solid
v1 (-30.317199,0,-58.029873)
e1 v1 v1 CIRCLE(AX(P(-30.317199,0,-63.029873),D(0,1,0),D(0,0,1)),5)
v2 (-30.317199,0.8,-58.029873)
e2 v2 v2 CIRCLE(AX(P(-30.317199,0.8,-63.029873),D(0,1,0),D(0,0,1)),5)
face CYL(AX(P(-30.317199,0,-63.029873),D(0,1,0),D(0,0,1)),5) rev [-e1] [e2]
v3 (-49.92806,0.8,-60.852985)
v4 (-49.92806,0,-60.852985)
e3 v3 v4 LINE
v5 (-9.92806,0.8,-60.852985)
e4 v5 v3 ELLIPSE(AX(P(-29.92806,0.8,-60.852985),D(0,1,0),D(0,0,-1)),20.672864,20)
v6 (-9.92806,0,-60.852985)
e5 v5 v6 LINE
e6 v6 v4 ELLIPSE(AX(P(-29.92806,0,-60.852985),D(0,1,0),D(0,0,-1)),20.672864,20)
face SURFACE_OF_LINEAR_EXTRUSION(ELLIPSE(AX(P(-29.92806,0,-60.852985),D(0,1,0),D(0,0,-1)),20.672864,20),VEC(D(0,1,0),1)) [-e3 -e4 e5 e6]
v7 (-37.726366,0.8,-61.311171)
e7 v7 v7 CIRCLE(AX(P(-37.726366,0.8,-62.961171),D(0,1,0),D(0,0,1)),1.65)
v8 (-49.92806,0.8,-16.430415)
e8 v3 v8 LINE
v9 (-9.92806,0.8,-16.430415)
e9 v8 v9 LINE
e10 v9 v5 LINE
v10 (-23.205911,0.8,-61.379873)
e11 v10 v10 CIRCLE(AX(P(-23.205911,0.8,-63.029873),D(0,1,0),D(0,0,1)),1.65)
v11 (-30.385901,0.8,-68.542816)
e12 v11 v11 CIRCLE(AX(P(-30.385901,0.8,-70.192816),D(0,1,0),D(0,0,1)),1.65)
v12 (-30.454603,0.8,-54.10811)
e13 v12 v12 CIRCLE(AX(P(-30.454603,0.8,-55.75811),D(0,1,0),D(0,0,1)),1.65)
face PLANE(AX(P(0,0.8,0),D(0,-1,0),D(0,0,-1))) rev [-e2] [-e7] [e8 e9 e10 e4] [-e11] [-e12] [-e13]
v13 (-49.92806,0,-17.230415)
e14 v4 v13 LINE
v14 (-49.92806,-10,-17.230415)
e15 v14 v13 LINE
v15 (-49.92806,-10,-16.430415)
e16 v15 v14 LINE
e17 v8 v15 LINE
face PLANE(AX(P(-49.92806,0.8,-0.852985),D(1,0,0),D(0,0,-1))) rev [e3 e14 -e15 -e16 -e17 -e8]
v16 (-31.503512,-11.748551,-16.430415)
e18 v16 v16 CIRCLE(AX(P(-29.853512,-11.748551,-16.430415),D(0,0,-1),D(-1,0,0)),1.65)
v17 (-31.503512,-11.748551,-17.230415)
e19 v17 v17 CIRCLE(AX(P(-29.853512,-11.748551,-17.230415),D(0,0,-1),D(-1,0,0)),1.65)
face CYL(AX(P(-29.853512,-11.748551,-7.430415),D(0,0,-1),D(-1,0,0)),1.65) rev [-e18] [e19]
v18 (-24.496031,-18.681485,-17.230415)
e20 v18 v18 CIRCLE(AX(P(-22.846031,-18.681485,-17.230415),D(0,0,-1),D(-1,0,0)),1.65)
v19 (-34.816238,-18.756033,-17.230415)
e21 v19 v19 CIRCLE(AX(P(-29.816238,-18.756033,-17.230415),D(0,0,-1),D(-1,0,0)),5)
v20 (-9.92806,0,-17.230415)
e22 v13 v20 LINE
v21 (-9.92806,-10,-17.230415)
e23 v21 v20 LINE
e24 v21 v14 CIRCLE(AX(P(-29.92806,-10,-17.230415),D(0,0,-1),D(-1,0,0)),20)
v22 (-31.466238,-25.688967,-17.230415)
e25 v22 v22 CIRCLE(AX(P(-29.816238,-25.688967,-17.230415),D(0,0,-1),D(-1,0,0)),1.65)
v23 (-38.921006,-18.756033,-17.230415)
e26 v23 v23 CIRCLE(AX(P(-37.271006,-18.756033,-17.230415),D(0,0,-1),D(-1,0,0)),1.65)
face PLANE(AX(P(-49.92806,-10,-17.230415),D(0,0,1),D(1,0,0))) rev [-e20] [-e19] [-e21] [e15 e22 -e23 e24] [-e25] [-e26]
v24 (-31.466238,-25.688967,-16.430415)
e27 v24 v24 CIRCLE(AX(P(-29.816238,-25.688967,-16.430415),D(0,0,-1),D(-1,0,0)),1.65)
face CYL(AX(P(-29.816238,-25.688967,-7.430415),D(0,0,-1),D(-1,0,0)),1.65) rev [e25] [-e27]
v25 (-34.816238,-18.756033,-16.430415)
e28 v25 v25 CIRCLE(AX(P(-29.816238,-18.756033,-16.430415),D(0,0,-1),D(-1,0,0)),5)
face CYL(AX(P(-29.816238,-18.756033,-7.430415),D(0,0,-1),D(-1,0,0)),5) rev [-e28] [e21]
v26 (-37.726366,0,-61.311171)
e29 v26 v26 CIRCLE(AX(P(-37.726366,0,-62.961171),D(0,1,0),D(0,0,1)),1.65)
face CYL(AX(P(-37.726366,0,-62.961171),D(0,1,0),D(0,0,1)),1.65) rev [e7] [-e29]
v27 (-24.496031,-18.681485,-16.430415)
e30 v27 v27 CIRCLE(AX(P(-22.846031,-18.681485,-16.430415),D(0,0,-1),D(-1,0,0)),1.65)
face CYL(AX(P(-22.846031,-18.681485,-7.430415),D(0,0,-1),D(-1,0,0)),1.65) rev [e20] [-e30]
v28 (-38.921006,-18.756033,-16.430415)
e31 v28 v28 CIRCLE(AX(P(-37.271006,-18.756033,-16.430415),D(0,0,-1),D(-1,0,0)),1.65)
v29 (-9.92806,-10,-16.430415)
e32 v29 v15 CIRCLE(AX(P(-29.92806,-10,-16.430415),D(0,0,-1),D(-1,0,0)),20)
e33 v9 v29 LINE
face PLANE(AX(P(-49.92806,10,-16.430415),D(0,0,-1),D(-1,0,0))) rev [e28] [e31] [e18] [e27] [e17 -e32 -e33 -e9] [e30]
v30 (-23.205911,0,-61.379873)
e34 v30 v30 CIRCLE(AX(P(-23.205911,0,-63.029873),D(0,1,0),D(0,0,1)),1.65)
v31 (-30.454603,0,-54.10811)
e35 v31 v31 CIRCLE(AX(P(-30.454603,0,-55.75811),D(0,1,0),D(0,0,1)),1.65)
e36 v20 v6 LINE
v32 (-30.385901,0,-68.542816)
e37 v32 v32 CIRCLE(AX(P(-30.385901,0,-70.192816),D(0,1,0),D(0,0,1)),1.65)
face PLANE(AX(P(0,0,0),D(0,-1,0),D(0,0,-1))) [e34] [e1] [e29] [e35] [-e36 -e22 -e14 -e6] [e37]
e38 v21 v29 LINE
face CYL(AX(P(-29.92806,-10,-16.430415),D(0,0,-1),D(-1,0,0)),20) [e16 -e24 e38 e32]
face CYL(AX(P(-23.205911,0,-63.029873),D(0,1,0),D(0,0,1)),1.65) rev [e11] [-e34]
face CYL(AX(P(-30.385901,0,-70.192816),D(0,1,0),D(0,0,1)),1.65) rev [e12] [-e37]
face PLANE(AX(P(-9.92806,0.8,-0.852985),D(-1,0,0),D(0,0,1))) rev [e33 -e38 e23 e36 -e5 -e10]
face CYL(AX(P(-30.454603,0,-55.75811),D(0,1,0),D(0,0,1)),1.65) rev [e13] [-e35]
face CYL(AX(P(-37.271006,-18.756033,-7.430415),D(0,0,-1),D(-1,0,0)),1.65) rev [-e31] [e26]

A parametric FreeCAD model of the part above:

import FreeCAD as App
import Part
import Sketcher

V = App.Vector


def add_polygon(sketch, points):
    """Adds a closed chain of lines whose ends are joined by coincident constraints."""
    first, n = sketch.GeometryCount, len(points)
    for a, b in zip(points, points[1:] + points[:1]):
        sketch.addGeometry(Part.LineSegment(App.Vector(*a, 0), App.Vector(*b, 0)), False)
    for i in range(n):
        sketch.addConstraint(Sketcher.Constraint("Coincident", first + i, 2, first + (i + 1) % n, 1))

doc = App.newDocument("Part")
body = doc.addObject("PartDesign::Body", "Body")

# Sketch on XZ plane
sketch1 = body.newObject("Sketcher::SketchObject", "Sketch")
sketch1.AttachmentSupport = (doc.getObject("XZ_Plane"), [""])
sketch1.MapMode = "FlatFace"
add_polygon(sketch1, [(-50, -61), (-50, -1), (-10, -1), (-10, -61)])  # lines 0-3
sketch1.addConstraint([
    Sketcher.Constraint("Vertical", 0),
    Sketcher.Constraint("Horizontal", 1),
    Sketcher.Constraint("Vertical", 2),
    Sketcher.Constraint("Horizontal", 3),
    Sketcher.Constraint("DistanceX", 1, 1, 1, 2, 40.0),
    Sketcher.Constraint("DistanceY", 0, 1, 0, 2, 60.0),
    Sketcher.Constraint("DistanceX", 0, 2, -1, 1, 49.92806),
    Sketcher.Constraint("DistanceY", 0, 2, -1, 1, 0.852985),
])
pad1 = body.newObject("PartDesign::Pad", "Pad")
pad1.Profile = sketch1
pad1.Length = 0.8
pad1.Reversed = True

# Sketch on XZ plane
sketch2 = body.newObject("Sketcher::SketchObject", "Sketch001")
sketch2.AttachmentSupport = (doc.getObject("XZ_Plane"), [""])
sketch2.MapMode = "FlatFace"
sketch2.AttachmentOffset = App.Placement(V(0, 0, -0.8), App.Rotation())
sketch2.addGeometry(Part.Ellipse(V(-29.92806, -81.52585, 0), V(-9.92806, -60.852985, 0), V(-29.92806, -60.852985, 0)), False)
sketch2.addConstraint(Sketcher.Constraint("Block", 0))
pad2 = body.newObject("PartDesign::Pad", "Pad001")
pad2.Profile = sketch2
pad2.Length = 0.8

# Sketch on XZ plane
sketch3 = body.newObject("Sketcher::SketchObject", "Sketch002")
sketch3.AttachmentSupport = (doc.getObject("XZ_Plane"), [""])
sketch3.MapMode = "FlatFace"
sketch3.AttachmentOffset = App.Placement(V(0, 0, -0.8), App.Rotation())
sketch3.addGeometry([
    Part.Circle(V(-30.3, -63, 0), V(0, 0, 1), 5),  # 0
    Part.Circle(V(-30.4, -70.2, 0), V(0, 0, 1), 1.6),  # 1
    Part.Circle(V(-23.2, -63, 0), V(0, 0, 1), 1.6),  # 2
    Part.Circle(V(-37.7, -63, 0), V(0, 0, 1), 1.6),  # 3
    Part.Circle(V(-30.5, -55.8, 0), V(0, 0, 1), 1.6),  # 4
], False)
sketch3.addConstraint([
    Sketcher.Constraint("Equal", 1, 2),
    Sketcher.Constraint("Equal", 2, 3),
    Sketcher.Constraint("Equal", 3, 4),
    Sketcher.Constraint("Horizontal", 0, 3, 2, 3),
    Sketcher.Constraint("Diameter", 0, 10.0),
    Sketcher.Constraint("Diameter", 1, 3.3),
    Sketcher.Constraint("DistanceX", 0, 3, -1, 1, 30.317199),
    Sketcher.Constraint("DistanceX", 1, 3, -1, 1, 30.385901),
    Sketcher.Constraint("DistanceY", 0, 3, 3, 3, 0.068702),
    Sketcher.Constraint("DistanceX", 4, 3, 1, 3, 0.068702),
    Sketcher.Constraint("DistanceX", 2, 3, -1, 1, 23.205911),
    Sketcher.Constraint("DistanceY", 3, 3, -1, 1, 62.961171),
    Sketcher.Constraint("DistanceY", 4, 3, -1, 1, 55.75811),
    Sketcher.Constraint("DistanceY", 1, 3, -1, 1, 70.192816),
    Sketcher.Constraint("DistanceX", 3, 3, -1, 1, 37.726366),
])
pocket1 = body.newObject("PartDesign::Pocket", "Pocket")
pocket1.Profile = sketch3
pocket1.Length = 0.8
pocket1.Reversed = True

# Sketch on XZ plane
sketch4 = body.newObject("Sketcher::SketchObject", "Sketch003")
sketch4.AttachmentSupport = (doc.getObject("XZ_Plane"), [""])
sketch4.MapMode = "FlatFace"
add_polygon(sketch4, [(-10, -16), (-10, -1), (-50, -1), (-50, -16)])  # lines 0-3
sketch4.addConstraint([
    Sketcher.Constraint("Vertical", 0),
    Sketcher.Constraint("Horizontal", 1),
    Sketcher.Constraint("Vertical", 2),
    Sketcher.Constraint("Horizontal", 3),
    Sketcher.Constraint("DistanceX", 1, 2, 1, 1, 40.0),
    Sketcher.Constraint("DistanceY", 0, 1, 0, 2, 15.57743),
    Sketcher.Constraint("DistanceX", 0, 2, -1, 1, 9.92806),
    Sketcher.Constraint("DistanceY", 0, 2, -1, 1, 0.852985),
])
pocket2 = body.newObject("PartDesign::Pocket", "Pocket001")
pocket2.Profile = sketch4
pocket2.Length = 10

# Sketch on XZ plane
sketch5 = body.newObject("Sketcher::SketchObject", "Sketch004")
sketch5.AttachmentSupport = (doc.getObject("XZ_Plane"), [""])
sketch5.MapMode = "FlatFace"
add_polygon(sketch5, [(-9.9, -17.2), (-9.9, -16.4), (-49.9, -16.4), (-49.9, -17.2)])  # lines 0-3
sketch5.addConstraint([
    Sketcher.Constraint("Vertical", 0),
    Sketcher.Constraint("Horizontal", 1),
    Sketcher.Constraint("Vertical", 2),
    Sketcher.Constraint("Horizontal", 3),
    Sketcher.Constraint("DistanceX", 1, 2, 1, 1, 40.0),
    Sketcher.Constraint("DistanceY", 0, 1, 0, 2, 0.8),
    Sketcher.Constraint("DistanceX", 0, 2, -1, 1, 9.92806),
    Sketcher.Constraint("DistanceY", 0, 2, -1, 1, 16.430415),
])
pad3 = body.newObject("PartDesign::Pad", "Pad002")
pad3.Profile = sketch5
pad3.Length = 10

# Sketch on XY plane
sketch6 = body.newObject("Sketcher::SketchObject", "Sketch005")
sketch6.AttachmentSupport = (doc.getObject("XY_Plane"), [""])
sketch6.MapMode = "FlatFace"
sketch6.AttachmentOffset = App.Placement(V(0, 0, -17.230415), App.Rotation())
sketch6.addGeometry(Part.Circle(V(-30, -10, 0), V(0, 0, 1), 20), False)
sketch6.addConstraint([
    Sketcher.Constraint("Diameter", 0, 40.0),
    Sketcher.Constraint("DistanceY", 0, 3, -1, 1, 10.0),
    Sketcher.Constraint("DistanceX", 0, 3, -1, 1, 29.92806),
])
pad4 = body.newObject("PartDesign::Pad", "Pad003")
pad4.Profile = sketch6
pad4.Length = 0.8

# Sketch on XY plane
sketch7 = body.newObject("Sketcher::SketchObject", "Sketch006")
sketch7.AttachmentSupport = (doc.getObject("XY_Plane"), [""])
sketch7.MapMode = "FlatFace"
sketch7.AttachmentOffset = App.Placement(V(0, 0, -17.230415), App.Rotation())
add_polygon(sketch7, [(-13, 13), (-13, 1), (-51, 1), (-51, 13)])  # lines 0-3
sketch7.addConstraint([
    Sketcher.Constraint("Vertical", 0),
    Sketcher.Constraint("Horizontal", 1),
    Sketcher.Constraint("Vertical", 2),
    Sketcher.Constraint("Horizontal", 3),
    Sketcher.Constraint("DistanceY", -1, 1, 0, 2, 0.8),
    Sketcher.Constraint("DistanceX", 1, 2, 1, 1, 37.719805),
    Sketcher.Constraint("DistanceY", 0, 2, 0, 1, 12.136565),
    Sketcher.Constraint("DistanceX", 0, 2, -1, 1, 13.094759),
])
pocket3 = body.newObject("PartDesign::Pocket", "Pocket002")
pocket3.Profile = sketch7
pocket3.Length = 0.8
pocket3.Reversed = True

# Sketch on XY plane
sketch8 = body.newObject("Sketcher::SketchObject", "Sketch007")
sketch8.AttachmentSupport = (doc.getObject("XY_Plane"), [""])
sketch8.MapMode = "FlatFace"
sketch8.AttachmentOffset = App.Placement(V(0, 0, -17.230415), App.Rotation())
sketch8.addGeometry([
    Part.Circle(V(-29.8, -18.8, 0), V(0, 0, 1), 5),  # 0
    Part.Circle(V(-29.9, -11.7, 0), V(0, 0, 1), 1.6),  # 1
    Part.Circle(V(-37.3, -18.8, 0), V(0, 0, 1), 1.6),  # 2
    Part.Circle(V(-29.8, -25.7, 0), V(0, 0, 1), 1.6),  # 3
    Part.Circle(V(-22.8, -18.7, 0), V(0, 0, 1), 1.6),  # 4
], False)
sketch8.addConstraint([
    Sketcher.Constraint("Equal", 1, 2),
    Sketcher.Constraint("Equal", 2, 3),
    Sketcher.Constraint("Equal", 3, 4),
    Sketcher.Constraint("Horizontal", 0, 3, 2, 3),
    Sketcher.Constraint("Vertical", 0, 3, 3, 3),
    Sketcher.Constraint("Diameter", 0, 10.0),
    Sketcher.Constraint("Diameter", 1, 3.3),
    Sketcher.Constraint("DistanceX", 0, 3, -1, 1, 29.816238),
    Sketcher.Constraint("DistanceY", 1, 3, -1, 1, 11.748551),
    Sketcher.Constraint("DistanceX", 4, 3, -1, 1, 22.846031),
    Sketcher.Constraint("DistanceY", 0, 3, 1, 3, 7.007481),
    Sketcher.Constraint("DistanceX", 1, 3, 4, 3, 7.007481),
    Sketcher.Constraint("DistanceY", 3, 3, 4, 3, 7.007481),
    Sketcher.Constraint("DistanceX", 2, 3, -1, 1, 37.271006),
    Sketcher.Constraint("DistanceY", 3, 3, -1, 1, 25.688967),
])
pocket4 = body.newObject("PartDesign::Pocket", "Pocket003")
pocket4.Profile = sketch8
pocket4.Length = 9.8
pocket4.Reversed = True

doc.recompute()
